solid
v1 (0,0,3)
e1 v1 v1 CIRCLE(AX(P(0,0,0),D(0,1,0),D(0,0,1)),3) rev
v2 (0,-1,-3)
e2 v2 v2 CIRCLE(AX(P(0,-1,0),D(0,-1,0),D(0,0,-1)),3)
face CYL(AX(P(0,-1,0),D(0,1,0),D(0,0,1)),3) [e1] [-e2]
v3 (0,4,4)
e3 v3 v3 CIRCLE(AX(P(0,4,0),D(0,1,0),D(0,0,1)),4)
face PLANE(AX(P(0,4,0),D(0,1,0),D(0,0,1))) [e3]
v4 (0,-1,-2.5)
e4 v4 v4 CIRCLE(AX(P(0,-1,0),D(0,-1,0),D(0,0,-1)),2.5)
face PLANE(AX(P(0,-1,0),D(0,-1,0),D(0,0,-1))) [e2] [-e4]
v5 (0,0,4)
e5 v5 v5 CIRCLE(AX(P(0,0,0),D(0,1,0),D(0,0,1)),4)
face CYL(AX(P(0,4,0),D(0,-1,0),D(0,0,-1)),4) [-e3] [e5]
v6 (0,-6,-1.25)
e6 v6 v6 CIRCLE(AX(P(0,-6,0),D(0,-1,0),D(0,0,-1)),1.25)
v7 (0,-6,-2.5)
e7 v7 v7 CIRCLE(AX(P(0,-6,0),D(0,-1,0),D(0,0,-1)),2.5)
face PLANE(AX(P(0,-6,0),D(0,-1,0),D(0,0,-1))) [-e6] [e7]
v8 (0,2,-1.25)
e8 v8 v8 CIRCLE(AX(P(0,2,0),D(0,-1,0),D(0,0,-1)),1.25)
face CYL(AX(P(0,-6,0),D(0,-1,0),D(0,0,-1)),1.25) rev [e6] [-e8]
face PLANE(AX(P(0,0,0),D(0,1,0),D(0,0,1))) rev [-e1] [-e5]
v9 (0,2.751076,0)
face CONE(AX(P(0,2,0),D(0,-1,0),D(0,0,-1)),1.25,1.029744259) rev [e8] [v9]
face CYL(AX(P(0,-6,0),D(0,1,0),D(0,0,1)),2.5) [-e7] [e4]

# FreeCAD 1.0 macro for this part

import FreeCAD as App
import Part
import Sketcher

V = App.Vector
Q = App.Units.Quantity


def add_polygon(sketch, points):
    """Adds a closed chain of lines whose ends are joined by coincident constraints."""
    first, n = sketch.GeometryCount, len(points)
    for a, b in zip(points, points[1:] + points[:1]):
        sketch.addGeometry(Part.LineSegment(App.Vector(*a, 0), App.Vector(*b, 0)), False)
    for i in range(n):
        sketch.addConstraint(Sketcher.Constraint("Coincident", first + i, 2, first + (i + 1) % n, 1))

doc = App.newDocument("Part")
body = doc.addObject("PartDesign::Body", "Body")

sketch1 = body.newObject("Sketcher::SketchObject", "Sketch")
sketch1.AttachmentSupport = (doc.getObject("XZ_Plane"), [""])
sketch1.MapMode = "FlatFace"
sketch1.addGeometry(Part.Circle(V(0, 0, 0), V(0, 0, 1), 4), False)
sketch1.addConstraint([
    Sketcher.Constraint("Coincident", 0, 3, -1, 1),
    Sketcher.Constraint("Diameter", 0, 8.0),
])
pad1 = body.newObject("PartDesign::Pad", "Pad")
pad1.Profile = sketch1
pad1.Length = 4
pad1.Reversed = True

sketch2 = body.newObject("Sketcher::SketchObject", "Sketch001")
sketch2.AttachmentSupport = (doc.getObject("XZ_Plane"), [""])
sketch2.MapMode = "FlatFace"
sketch2.addGeometry(Part.Circle(V(0, 0, 0), V(0, 0, 1), 2.5), False)
sketch2.addConstraint([
    Sketcher.Constraint("Coincident", 0, 3, -1, 1),
    Sketcher.Constraint("Diameter", 0, 5.0),
])
pad2 = body.newObject("PartDesign::Pad", "Pad001")
pad2.Profile = sketch2
pad2.Length = 6

sketch3 = body.newObject("Sketcher::SketchObject", "Sketch002")
sketch3.AttachmentSupport = (doc.getObject("XZ_Plane"), [""])
sketch3.MapMode = "FlatFace"
sketch3.addGeometry(Part.Circle(V(0, 0, 0), V(0, 0, 1), 3), False)
sketch3.addConstraint([
    Sketcher.Constraint("Coincident", 0, 3, -1, 1),
    Sketcher.Constraint("Diameter", 0, 6.0),
])
pad3 = body.newObject("PartDesign::Pad", "Pad002")
pad3.Profile = sketch3
pad3.Length = 1

sketch4 = body.newObject("Sketcher::SketchObject", "Sketch003")
sketch4.AttachmentSupport = (doc.getObject("YZ_Plane"), [""])
sketch4.MapMode = "FlatFace"
add_polygon(sketch4, [(2.8, 0), (-6, 0), (-6, -1.2), (2, -1.2)])
sketch4.addConstraint([
    Sketcher.Constraint("Horizontal", 0),
    Sketcher.Constraint("Vertical", 1),
    Sketcher.Constraint("Horizontal", 2),
    Sketcher.Constraint("PointOnObject", 0, 2, -1),
    Sketcher.Constraint("DistanceX", 2, 1, 2, 2, 8.0),
    Sketcher.Constraint("Angle", 3, Q("59 deg")),
    Sketcher.Constraint("DistanceX", 0, 2, -1, 1, 6.0),
    Sketcher.Constraint("DistanceY", 1, 2, 1, 1, 1.25),
])
groove = body.newObject("PartDesign::Groove", "Groove")
groove.Profile = sketch4
groove.ReferenceAxis = (sketch4, ["H_Axis"])
groove.Angle = 360

doc.recompute()
